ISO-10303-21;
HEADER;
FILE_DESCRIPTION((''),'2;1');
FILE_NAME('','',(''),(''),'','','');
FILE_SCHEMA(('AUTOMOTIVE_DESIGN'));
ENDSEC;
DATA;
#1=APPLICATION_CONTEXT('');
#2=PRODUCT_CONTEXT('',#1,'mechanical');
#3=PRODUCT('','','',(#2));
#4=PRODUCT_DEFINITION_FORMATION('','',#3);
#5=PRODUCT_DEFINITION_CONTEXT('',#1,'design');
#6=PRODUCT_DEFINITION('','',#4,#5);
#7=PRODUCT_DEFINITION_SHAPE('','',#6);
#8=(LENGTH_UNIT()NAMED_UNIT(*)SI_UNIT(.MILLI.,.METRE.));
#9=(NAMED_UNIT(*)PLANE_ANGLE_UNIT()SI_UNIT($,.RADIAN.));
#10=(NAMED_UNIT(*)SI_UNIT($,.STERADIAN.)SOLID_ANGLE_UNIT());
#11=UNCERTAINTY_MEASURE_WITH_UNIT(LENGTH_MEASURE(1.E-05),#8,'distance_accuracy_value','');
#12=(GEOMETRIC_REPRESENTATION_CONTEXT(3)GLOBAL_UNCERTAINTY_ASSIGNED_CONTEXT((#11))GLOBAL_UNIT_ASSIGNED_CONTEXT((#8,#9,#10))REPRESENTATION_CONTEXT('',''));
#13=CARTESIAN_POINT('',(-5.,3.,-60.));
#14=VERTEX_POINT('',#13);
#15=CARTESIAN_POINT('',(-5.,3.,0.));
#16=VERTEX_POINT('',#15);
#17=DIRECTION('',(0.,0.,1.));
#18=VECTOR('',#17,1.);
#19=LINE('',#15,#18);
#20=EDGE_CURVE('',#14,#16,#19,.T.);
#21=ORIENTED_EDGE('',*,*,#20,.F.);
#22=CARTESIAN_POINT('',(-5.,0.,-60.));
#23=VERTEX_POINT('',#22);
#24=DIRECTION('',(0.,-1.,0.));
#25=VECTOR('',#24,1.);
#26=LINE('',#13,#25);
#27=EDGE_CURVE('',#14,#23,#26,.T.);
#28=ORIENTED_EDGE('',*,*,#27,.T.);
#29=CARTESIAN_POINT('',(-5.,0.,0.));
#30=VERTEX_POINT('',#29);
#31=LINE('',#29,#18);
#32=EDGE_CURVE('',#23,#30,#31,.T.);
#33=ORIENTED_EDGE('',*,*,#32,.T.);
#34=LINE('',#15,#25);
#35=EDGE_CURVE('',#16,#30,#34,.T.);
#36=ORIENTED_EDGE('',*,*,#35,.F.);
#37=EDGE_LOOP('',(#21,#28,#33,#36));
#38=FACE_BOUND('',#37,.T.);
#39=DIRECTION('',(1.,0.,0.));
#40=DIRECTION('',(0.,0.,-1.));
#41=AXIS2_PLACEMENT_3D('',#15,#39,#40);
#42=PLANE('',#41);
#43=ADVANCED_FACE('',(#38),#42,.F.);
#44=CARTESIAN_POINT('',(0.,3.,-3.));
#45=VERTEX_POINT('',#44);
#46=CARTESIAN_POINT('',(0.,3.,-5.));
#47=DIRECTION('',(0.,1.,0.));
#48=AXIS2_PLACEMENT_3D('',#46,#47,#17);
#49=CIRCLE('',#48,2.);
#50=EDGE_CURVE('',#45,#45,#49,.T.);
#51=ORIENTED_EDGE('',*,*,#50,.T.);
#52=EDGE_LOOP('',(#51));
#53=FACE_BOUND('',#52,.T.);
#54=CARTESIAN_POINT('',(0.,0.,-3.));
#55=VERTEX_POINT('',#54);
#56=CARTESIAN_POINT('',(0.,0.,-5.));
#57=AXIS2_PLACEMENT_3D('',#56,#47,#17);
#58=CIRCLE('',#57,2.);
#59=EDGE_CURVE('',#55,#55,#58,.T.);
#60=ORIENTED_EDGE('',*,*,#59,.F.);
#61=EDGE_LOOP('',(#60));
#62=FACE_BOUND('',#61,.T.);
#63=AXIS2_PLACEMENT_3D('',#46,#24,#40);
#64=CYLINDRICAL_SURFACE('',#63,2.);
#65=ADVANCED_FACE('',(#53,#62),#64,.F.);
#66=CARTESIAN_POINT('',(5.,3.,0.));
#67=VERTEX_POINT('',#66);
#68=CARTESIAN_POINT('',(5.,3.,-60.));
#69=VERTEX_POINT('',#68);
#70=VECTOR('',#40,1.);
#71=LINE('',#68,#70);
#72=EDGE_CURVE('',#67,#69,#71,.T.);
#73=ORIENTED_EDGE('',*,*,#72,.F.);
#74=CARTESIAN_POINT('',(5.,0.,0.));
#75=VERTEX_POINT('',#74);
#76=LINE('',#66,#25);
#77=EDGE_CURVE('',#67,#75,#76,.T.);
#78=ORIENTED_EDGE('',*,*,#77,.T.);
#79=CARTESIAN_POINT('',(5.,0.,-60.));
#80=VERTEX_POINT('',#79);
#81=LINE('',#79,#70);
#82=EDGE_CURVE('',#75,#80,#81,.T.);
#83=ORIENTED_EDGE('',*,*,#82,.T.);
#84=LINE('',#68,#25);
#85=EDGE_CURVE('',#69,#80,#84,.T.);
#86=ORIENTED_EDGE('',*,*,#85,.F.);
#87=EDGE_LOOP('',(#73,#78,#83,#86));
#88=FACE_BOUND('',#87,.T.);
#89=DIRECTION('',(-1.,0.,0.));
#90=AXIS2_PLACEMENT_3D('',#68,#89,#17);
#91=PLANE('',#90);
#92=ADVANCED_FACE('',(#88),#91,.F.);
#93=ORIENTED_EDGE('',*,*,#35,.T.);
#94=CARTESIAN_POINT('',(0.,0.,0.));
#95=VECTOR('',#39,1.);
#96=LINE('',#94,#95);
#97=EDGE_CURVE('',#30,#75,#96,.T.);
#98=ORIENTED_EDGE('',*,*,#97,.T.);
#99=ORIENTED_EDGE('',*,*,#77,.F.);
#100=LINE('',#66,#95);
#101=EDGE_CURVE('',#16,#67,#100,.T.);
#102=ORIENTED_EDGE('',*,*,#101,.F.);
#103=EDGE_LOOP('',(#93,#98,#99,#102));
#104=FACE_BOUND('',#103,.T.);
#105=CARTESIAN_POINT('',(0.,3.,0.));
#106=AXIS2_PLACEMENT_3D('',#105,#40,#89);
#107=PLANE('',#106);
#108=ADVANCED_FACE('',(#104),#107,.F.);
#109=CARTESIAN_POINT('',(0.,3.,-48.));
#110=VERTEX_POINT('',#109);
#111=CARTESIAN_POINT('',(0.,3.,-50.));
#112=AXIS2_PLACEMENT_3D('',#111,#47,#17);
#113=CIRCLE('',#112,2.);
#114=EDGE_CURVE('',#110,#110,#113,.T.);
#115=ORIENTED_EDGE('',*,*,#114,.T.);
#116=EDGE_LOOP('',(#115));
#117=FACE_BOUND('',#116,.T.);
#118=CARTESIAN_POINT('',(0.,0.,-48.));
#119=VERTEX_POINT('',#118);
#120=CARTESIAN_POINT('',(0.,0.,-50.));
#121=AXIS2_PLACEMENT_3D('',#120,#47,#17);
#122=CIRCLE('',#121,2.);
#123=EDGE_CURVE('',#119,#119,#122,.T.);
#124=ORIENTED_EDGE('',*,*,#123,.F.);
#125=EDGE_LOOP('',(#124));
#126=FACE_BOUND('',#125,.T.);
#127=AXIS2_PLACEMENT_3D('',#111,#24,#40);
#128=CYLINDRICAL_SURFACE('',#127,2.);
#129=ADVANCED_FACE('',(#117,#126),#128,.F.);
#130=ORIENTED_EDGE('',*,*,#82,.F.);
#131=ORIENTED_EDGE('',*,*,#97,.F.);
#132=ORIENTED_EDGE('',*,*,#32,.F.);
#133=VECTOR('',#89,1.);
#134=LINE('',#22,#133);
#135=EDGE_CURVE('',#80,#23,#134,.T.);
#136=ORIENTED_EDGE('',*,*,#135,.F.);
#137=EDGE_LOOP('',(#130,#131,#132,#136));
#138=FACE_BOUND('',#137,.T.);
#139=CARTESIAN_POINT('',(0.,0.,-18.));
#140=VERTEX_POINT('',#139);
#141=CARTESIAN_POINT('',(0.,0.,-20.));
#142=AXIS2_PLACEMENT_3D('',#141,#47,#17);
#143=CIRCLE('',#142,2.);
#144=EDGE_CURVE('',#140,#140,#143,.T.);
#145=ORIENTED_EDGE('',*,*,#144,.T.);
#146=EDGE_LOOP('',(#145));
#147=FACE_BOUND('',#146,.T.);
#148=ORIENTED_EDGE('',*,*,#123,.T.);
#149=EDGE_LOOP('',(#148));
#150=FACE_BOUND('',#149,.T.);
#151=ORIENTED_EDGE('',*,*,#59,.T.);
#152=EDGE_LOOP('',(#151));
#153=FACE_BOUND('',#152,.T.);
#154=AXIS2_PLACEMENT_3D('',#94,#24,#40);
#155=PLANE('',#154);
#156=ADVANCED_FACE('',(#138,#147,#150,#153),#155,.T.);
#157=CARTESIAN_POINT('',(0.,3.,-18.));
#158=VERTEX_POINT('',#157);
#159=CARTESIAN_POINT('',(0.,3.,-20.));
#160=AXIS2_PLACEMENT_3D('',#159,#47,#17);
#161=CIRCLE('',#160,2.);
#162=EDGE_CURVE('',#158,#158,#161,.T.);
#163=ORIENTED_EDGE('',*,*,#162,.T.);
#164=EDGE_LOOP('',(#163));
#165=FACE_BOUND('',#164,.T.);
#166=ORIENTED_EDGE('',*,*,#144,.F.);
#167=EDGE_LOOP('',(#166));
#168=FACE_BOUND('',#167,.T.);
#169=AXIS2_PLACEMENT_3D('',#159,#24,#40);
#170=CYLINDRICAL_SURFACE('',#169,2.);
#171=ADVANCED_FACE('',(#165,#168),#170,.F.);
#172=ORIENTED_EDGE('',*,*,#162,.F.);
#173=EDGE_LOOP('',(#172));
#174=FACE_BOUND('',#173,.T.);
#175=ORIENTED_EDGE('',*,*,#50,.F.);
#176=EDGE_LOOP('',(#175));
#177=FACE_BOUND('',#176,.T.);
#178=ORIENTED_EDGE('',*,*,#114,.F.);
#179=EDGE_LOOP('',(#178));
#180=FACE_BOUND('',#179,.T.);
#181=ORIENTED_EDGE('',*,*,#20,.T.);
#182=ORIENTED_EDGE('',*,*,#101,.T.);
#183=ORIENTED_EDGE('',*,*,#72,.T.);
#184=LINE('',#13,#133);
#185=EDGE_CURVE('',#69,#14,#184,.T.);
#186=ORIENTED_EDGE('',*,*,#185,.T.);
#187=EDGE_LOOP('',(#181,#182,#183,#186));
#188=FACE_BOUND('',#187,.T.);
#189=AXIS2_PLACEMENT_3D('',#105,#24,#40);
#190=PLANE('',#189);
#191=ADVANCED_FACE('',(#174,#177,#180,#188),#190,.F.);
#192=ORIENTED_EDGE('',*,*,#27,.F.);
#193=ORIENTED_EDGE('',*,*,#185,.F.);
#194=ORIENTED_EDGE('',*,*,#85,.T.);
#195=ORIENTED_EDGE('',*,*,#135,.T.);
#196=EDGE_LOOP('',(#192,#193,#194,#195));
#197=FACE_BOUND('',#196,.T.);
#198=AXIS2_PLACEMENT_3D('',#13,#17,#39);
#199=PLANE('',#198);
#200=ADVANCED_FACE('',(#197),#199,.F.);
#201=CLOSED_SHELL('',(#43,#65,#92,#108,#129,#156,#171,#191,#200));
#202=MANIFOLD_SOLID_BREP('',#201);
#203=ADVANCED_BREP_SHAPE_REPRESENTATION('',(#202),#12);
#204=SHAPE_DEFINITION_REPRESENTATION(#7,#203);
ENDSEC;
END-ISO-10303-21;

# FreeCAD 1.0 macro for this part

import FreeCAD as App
import Part
import Sketcher
from FreeCAD import Vector

doc = App.newDocument("Part")
params = doc.addObject("Spreadsheet::Sheet", "Params")
for row, (alias, value) in enumerate([
    ("sketch1_diameter", "4 mm"),
    ("sketch1_width", "10 mm"),
    ("sketch1_height", "60 mm"),
    ("pad1_length", "3 mm"),
], start=1):
    params.set(f"A{row}", alias)
    params.set(f"B{row}", "=" + value)
    params.setAlias(f"B{row}", alias)

body = doc.addObject("PartDesign::Body", "Body")

# Sketch on XZ plane
sketch1 = doc.addObject("Sketcher::SketchObject", "Sketch")
body.addObject(sketch1)
sketch1.AttachmentSupport = (doc.XZ_Plane, [""])
sketch1.MapMode = "FlatFace"
sketch1.addGeometry(Part.LineSegment(Vector(-5, 0, 0), Vector(5, 0, 0)), False)
sketch1.addGeometry(Part.LineSegment(Vector(5, 0, 0), Vector(5, -60, 0)), False)
sketch1.addGeometry(Part.LineSegment(Vector(5, -60, 0), Vector(-5, -60, 0)), False)
sketch1.addGeometry(Part.LineSegment(Vector(-5, -60, 0), Vector(-5, 0, 0)), False)
sketch1.addGeometry(Part.Circle(Vector(0, -5, 0), Vector(0, 0, 1), 2), False)
sketch1.addGeometry(Part.Circle(Vector(0, -20, 0), Vector(0, 0, 1), 2), False)
sketch1.addGeometry(Part.Circle(Vector(0, -50, 0), Vector(0, 0, 1), 2), False)
sketch1.addConstraint(Sketcher.Constraint("Coincident", 0, 2, 1, 1))
sketch1.addConstraint(Sketcher.Constraint("Coincident", 1, 2, 2, 1))
sketch1.addConstraint(Sketcher.Constraint("Coincident", 2, 2, 3, 1))
sketch1.addConstraint(Sketcher.Constraint("Coincident", 3, 2, 0, 1))
sketch1.addConstraint(Sketcher.Constraint("Horizontal", 0))
sketch1.addConstraint(Sketcher.Constraint("Vertical", 1))
sketch1.addConstraint(Sketcher.Constraint("Horizontal", 2))
sketch1.addConstraint(Sketcher.Constraint("Vertical", 3))
sketch1.addConstraint(Sketcher.Constraint("Equal", 4, 5))
sketch1.addConstraint(Sketcher.Constraint("Equal", 5, 6))
sketch1.addConstraint(Sketcher.Constraint("Symmetric", 0, 2, 3, 2, -1, 1))
sketch1.addConstraint(Sketcher.Constraint("PointOnObject", 4, 3, -2))
sketch1.addConstraint(Sketcher.Constraint("PointOnObject", 5, 3, -2))
sketch1.addConstraint(Sketcher.Constraint("PointOnObject", 6, 3, -2))
sketch1.addConstraint(Sketcher.Constraint("Diameter", 4, 4.0))
sketch1.addConstraint(Sketcher.Constraint("DistanceX", 0, 1, 0, 2, 10.0))
sketch1.addConstraint(Sketcher.Constraint("DistanceY", 1, 2, 1, 1, 60.0))
sketch1.addConstraint(Sketcher.Constraint("DistanceY", 4, 3, -1, 1, 5.0))
sketch1.addConstraint(Sketcher.Constraint("DistanceY", 5, 3, -1, 1, 20.0))
sketch1.addConstraint(Sketcher.Constraint("DistanceY", 6, 3, -1, 1, 50.0))
sketch1.setExpression("Constraints[14]", "Params.sketch1_diameter")
sketch1.setExpression("Constraints[15]", "Params.sketch1_width")
sketch1.setExpression("Constraints[16]", "Params.sketch1_height")
pad1 = doc.addObject("PartDesign::Pad", "Pad")
body.addObject(pad1)
pad1.Profile = sketch1
pad1.setExpression("Length", "Params.pad1_length")
pad1.Reversed = True

doc.recompute()
